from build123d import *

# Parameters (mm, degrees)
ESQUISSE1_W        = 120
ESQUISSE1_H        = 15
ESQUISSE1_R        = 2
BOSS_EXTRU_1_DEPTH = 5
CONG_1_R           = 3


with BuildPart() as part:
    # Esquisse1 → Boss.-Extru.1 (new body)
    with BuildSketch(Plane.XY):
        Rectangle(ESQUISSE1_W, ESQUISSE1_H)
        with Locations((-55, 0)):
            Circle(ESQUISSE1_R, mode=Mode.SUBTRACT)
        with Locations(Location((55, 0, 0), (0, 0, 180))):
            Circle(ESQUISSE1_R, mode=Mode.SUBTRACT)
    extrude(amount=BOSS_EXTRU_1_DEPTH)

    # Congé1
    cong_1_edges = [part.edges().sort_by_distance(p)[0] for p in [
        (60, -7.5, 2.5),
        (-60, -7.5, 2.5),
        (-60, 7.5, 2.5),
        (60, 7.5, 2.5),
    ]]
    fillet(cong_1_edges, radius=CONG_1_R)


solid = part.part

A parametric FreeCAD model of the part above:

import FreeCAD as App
import Part
import Sketcher

V = App.Vector


def edges_at(feature, points):
    """Names of the edges that pass closest to the given points."""
    edges = feature.Shape.Edges
    near = lambda p: min(range(len(edges)), key=lambda i: edges[i].distToShape(Part.Vertex(*p))[0])
    return sorted({f"Edge{near(p) + 1}" for p in points})


def add_polygon(sketch, points):
    """Adds a closed chain of lines whose ends are joined by coincident constraints."""
    first, n = sketch.GeometryCount, len(points)
    for a, b in zip(points, points[1:] + points[:1]):
        sketch.addGeometry(Part.LineSegment(App.Vector(*a, 0), App.Vector(*b, 0)), False)
    for i in range(n):
        sketch.addConstraint(Sketcher.Constraint("Coincident", first + i, 2, first + (i + 1) % n, 1))

doc = App.newDocument("Part")
body = doc.addObject("PartDesign::Body", "Body")

# Sketch on XY plane
sketch1 = body.newObject("Sketcher::SketchObject", "Sketch")
sketch1.AttachmentSupport = (doc.getObject("XY_Plane"), [""])
sketch1.MapMode = "FlatFace"
add_polygon(sketch1, [(-60, 7.5), (-60, -7.5), (60, -7.5), (60, 7.5)])  # lines 0-3
sketch1.addGeometry(Part.Circle(V(-55, 0, 0), V(0, 0, 1), 2), False)  # 4
sketch1.addGeometry(Part.Circle(V(55, 0, 0), V(0, 0, 1), 2), False)  # 5
sketch1.addConstraint([
    Sketcher.Constraint("Vertical", 0),
    Sketcher.Constraint("Horizontal", 1),
    Sketcher.Constraint("Vertical", 2),
    Sketcher.Constraint("Horizontal", 3),
    Sketcher.Constraint("Equal", 4, 5),
    Sketcher.Constraint("Symmetric", 4, 3, 5, 3, -1, 1),
    Sketcher.Constraint("Symmetric", 0, 2, 2, 2, -1, 1),
    Sketcher.Constraint("PointOnObject", 4, 3, -1),
    Sketcher.Constraint("Diameter", 4, 4.0),
    Sketcher.Constraint("DistanceX", 1, 1, 1, 2, 120.0),
    Sketcher.Constraint("DistanceY", 0, 2, 0, 1, 15.0),
    Sketcher.Constraint("DistanceX", 4, 3, -1, 1, 55.0),
])
pad1 = body.newObject("PartDesign::Pad", "Pad")
pad1.Profile = sketch1
pad1.Length = 5
doc.recompute()

fillet = body.newObject("PartDesign::Fillet", "Fillet")
fillet.Base = (pad1, edges_at(pad1, [
    (60, -7.5, 2.5),
    (-60, -7.5, 2.5),
    (-60, 7.5, 2.5),
    (60, 7.5, 2.5),
]))
fillet.Radius = 3

doc.recompute()
